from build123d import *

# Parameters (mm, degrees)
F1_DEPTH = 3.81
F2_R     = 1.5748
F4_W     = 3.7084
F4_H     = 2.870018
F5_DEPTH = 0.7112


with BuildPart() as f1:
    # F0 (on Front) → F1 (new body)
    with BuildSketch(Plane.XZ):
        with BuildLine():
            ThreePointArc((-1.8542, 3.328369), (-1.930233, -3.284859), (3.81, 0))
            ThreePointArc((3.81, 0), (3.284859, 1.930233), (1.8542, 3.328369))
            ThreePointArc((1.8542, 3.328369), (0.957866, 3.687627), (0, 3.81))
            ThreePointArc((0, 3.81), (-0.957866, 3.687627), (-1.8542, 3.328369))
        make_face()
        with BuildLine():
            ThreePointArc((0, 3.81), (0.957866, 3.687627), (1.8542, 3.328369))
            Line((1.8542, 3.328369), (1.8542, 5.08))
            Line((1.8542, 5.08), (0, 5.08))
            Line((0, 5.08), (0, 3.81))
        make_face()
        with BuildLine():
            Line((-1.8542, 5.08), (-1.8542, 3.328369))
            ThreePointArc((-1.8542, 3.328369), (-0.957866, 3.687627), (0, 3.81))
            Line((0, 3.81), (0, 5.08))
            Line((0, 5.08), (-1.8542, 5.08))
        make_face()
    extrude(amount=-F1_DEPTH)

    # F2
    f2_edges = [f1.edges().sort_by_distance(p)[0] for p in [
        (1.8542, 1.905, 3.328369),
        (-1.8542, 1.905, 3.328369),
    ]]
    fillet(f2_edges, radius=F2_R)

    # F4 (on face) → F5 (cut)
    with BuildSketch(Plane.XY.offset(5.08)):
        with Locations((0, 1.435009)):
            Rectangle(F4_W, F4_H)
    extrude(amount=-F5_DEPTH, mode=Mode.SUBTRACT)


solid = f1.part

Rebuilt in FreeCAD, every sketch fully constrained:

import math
import FreeCAD as App
import Part
import Sketcher
Q = App.Units.Quantity


def edges_at(feature, points):
    """Names of the edges that pass closest to the given points."""
    edges = feature.Shape.Edges
    near = lambda p: min(range(len(edges)), key=lambda i: edges[i].distToShape(Part.Vertex(*p))[0])
    return sorted({f"Edge{near(p) + 1}" for p in points})


def add_polygon(sketch, points):
    """Adds a closed chain of lines whose ends are joined by coincident constraints."""
    first, n = sketch.GeometryCount, len(points)
    for a, b in zip(points, points[1:] + points[:1]):
        sketch.addGeometry(Part.LineSegment(App.Vector(*a, 0), App.Vector(*b, 0)), False)
    for i in range(n):
        sketch.addConstraint(Sketcher.Constraint("Coincident", first + i, 2, first + (i + 1) % n, 1))

doc = App.newDocument("Part")
body = doc.addObject("PartDesign::Body", "Body")

sketch1 = doc.addObject("Sketcher::SketchObject", "Sketch")
body.addObject(sketch1)
sketch1.AttachmentSupport = (doc.XZ_Plane, [""])
sketch1.MapMode = "FlatFace"
sketch1.addGeometry(Part.ArcOfCircle(Part.Circle(App.Vector(0, 0, 0), App.Vector(0, 0, 1), 3.8), math.radians(119), math.radians(360)), False)
sketch1.addGeometry(Part.ArcOfCircle(Part.Circle(App.Vector(0, 0, 0), App.Vector(0, 0, 1), 3.8), math.radians(0), math.radians(61)), False)
sketch1.addGeometry(Part.LineSegment(App.Vector(1.9, 3.3, 0), App.Vector(1.9, 5.1, 0)), False)
sketch1.addGeometry(Part.LineSegment(App.Vector(1.9, 5.1, 0), App.Vector(-1.9, 5.1, 0)), False)
sketch1.addGeometry(Part.LineSegment(App.Vector(-1.9, 5.1, 0), App.Vector(-1.9, 3.3, 0)), False)
sketch1.addConstraint(Sketcher.Constraint("Tangent", 0, 2, 1, 1))
sketch1.addConstraint(Sketcher.Constraint("Coincident", 1, 2, 2, 1))
sketch1.addConstraint(Sketcher.Constraint("Coincident", 2, 2, 3, 1))
sketch1.addConstraint(Sketcher.Constraint("Coincident", 3, 2, 4, 1))
sketch1.addConstraint(Sketcher.Constraint("Coincident", 4, 2, 0, 1))
sketch1.addConstraint(Sketcher.Constraint("Vertical", 2))
sketch1.addConstraint(Sketcher.Constraint("Horizontal", 3))
sketch1.addConstraint(Sketcher.Constraint("Vertical", 4))
sketch1.addConstraint(Sketcher.Constraint("Coincident", 0, 3, -1, 1))
sketch1.addConstraint(Sketcher.Constraint("Equal", 0, 1))
sketch1.addConstraint(Sketcher.Constraint("PointOnObject", 0, 2, -1))
sketch1.addConstraint(Sketcher.Constraint("Horizontal", 1, 2, 4, 2))
sketch1.addConstraint(Sketcher.Constraint("Radius", 0, Q("0.15 in")))
sketch1.addConstraint(Sketcher.Constraint("DistanceY", -1, 1, 2, 2, Q("0.2 in")))
sketch1.addConstraint(Sketcher.Constraint("DistanceX", 3, 2, 3, 1, Q("0.146 in")))
pad1 = doc.addObject("PartDesign::Pad", "Pad")
body.addObject(pad1)
pad1.Profile = sketch1
pad1.Length = Q("0.15 in")
pad1.Reversed = True
doc.recompute()

fillet = doc.addObject("PartDesign::Fillet", "Fillet")
body.addObject(fillet)
fillet.Base = (pad1, edges_at(pad1, [(1.854, 1.905, 3.328), (-1.854, 1.905, 3.328)]))
fillet.Radius = Q("0.062 in")

sketch2 = doc.addObject("Sketcher::SketchObject", "Sketch001")
body.addObject(sketch2)
sketch2.AttachmentSupport = (doc.XY_Plane, [""])
sketch2.MapMode = "FlatFace"
sketch2.AttachmentOffset = App.Placement(App.Vector(0, 0, 0.2 * 25.4), App.Rotation())
add_polygon(sketch2, [(-1.9, 2.9), (-1.9, 0), (1.9, 0), (1.9, 2.9)])
sketch2.addConstraint(Sketcher.Constraint("Vertical", 0))
sketch2.addConstraint(Sketcher.Constraint("Horizontal", 1))
sketch2.addConstraint(Sketcher.Constraint("Vertical", 2))
sketch2.addConstraint(Sketcher.Constraint("Horizontal", 3))
sketch2.addConstraint(Sketcher.Constraint("Symmetric", 0, 2, 1, 2, -1, 1))
sketch2.addConstraint(Sketcher.Constraint("DistanceX", 1, 1, 1, 2, Q("0.146 in")))
sketch2.addConstraint(Sketcher.Constraint("DistanceY", 0, 2, 0, 1, 2.870018))
pocket1 = doc.addObject("PartDesign::Pocket", "Pocket")
body.addObject(pocket1)
pocket1.Profile = sketch2
pocket1.Length = Q("0.028 in")

doc.recompute()
